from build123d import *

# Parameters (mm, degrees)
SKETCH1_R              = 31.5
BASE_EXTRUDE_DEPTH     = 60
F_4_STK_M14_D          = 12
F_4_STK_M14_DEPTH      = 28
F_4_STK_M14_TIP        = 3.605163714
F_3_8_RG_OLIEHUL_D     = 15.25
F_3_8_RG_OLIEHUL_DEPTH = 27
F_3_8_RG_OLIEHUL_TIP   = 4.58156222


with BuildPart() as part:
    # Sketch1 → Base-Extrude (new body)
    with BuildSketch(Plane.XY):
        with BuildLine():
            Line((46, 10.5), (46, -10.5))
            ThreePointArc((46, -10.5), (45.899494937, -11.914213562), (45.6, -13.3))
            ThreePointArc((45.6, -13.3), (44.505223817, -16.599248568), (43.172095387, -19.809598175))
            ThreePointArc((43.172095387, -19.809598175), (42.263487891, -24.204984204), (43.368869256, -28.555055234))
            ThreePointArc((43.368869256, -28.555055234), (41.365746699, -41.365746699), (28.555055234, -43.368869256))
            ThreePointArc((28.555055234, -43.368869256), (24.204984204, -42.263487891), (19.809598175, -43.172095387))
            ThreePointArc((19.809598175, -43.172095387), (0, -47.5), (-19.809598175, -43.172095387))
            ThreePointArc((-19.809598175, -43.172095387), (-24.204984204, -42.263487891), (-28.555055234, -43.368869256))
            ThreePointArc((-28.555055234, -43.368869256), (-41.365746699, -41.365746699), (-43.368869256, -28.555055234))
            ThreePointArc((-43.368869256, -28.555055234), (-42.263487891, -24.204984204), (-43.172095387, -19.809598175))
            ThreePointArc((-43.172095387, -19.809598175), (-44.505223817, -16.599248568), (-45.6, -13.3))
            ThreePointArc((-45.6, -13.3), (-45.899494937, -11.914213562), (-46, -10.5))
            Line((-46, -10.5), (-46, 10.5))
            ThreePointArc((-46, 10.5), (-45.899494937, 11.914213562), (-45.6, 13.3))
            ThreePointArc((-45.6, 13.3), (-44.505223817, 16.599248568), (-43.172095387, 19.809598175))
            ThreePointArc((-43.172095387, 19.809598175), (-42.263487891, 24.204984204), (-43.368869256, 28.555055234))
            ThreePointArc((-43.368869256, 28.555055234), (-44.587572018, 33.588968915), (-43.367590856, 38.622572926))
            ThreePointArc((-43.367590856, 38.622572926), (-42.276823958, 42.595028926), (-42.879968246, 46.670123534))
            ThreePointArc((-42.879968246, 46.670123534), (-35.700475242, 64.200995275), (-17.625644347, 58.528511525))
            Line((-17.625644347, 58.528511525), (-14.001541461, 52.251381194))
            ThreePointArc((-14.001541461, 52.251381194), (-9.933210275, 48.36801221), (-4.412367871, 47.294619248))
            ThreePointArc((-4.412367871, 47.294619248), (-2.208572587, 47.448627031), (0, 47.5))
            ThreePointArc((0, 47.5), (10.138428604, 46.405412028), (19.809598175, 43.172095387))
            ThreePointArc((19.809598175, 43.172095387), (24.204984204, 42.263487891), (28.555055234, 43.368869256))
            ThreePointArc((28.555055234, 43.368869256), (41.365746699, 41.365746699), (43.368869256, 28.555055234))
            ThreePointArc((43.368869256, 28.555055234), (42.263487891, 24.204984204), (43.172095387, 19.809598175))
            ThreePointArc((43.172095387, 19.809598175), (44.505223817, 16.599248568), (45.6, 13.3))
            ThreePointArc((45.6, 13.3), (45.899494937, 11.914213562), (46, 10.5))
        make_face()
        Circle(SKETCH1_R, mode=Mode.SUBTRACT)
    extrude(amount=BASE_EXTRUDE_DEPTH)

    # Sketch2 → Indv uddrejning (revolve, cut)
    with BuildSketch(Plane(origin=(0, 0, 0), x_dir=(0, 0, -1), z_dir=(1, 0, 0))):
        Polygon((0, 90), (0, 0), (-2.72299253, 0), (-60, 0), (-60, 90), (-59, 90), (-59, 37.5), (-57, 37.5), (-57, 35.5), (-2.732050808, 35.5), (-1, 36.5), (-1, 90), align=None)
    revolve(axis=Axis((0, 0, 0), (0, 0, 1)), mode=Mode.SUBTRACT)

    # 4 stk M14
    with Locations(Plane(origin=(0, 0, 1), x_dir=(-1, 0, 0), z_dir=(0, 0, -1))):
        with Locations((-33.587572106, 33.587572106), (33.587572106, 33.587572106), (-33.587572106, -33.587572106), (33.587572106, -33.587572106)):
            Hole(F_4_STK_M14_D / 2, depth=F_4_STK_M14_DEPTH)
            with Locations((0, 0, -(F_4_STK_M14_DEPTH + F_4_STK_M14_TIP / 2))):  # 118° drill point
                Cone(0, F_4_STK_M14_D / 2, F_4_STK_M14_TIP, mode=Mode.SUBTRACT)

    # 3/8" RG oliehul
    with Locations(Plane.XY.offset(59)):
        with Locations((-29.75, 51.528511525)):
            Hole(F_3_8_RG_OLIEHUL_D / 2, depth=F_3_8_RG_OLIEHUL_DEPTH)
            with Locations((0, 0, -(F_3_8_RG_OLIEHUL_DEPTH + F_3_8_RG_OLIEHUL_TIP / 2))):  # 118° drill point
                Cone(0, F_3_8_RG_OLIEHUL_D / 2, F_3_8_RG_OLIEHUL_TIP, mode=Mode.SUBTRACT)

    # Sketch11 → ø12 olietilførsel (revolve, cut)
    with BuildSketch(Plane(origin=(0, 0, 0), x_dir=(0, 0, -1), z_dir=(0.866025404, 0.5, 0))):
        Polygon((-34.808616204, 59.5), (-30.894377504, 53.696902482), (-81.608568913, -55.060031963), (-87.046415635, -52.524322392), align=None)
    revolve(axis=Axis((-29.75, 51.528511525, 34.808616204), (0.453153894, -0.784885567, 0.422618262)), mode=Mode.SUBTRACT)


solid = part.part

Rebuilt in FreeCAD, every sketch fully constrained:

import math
import FreeCAD as App
import Part
import Sketcher
from FreeCAD import Vector
Q = App.Units.Quantity


def add_polygon(sketch, points):
    """Adds a closed chain of lines whose ends are joined by coincident constraints."""
    first, n = sketch.GeometryCount, len(points)
    for a, b in zip(points, points[1:] + points[:1]):
        sketch.addGeometry(Part.LineSegment(App.Vector(*a, 0), App.Vector(*b, 0)), False)
    for i in range(n):
        sketch.addConstraint(Sketcher.Constraint("Coincident", first + i, 2, first + (i + 1) % n, 1))

doc = App.newDocument("Part")
body = doc.addObject("PartDesign::Body", "Body")

sketch1 = body.newObject("Sketcher::SketchObject", "Sketch")
sketch1.AttachmentSupport = (doc.getObject("XY_Plane"), [""])
sketch1.MapMode = "FlatFace"
sketch1.addGeometry([
    Part.LineSegment(Vector(46, -10.5, 0), Vector(46, 10.5, 0)),
    Part.ArcOfCircle(Part.Circle(Vector(36, 10.5, 0), Vector(0, 0, 1), 10), math.radians(0), math.radians(16.26)),
    Part.ArcOfCircle(Part.Circle(Vector(0, 0, 0), Vector(0, 0, 1), 47.5), math.radians(16.26), math.radians(24.65)),
    Part.ArcOfCircle(Part.Circle(Vector(52.3, 24, 0), Vector(0, 0, 1), 10), math.radians(153), math.radians(205)),
    Part.ArcOfCircle(Part.Circle(Vector(33.6, 33.6, 0), Vector(0, 0, 1), 11), math.radians(-27), math.radians(117)),
    Part.ArcOfCircle(Part.Circle(Vector(24, 52.3, 0), Vector(0, 0, 1), 10), math.radians(-115), math.radians(-63)),
    Part.ArcOfCircle(Part.Circle(Vector(0, 0, 0), Vector(0, 0, 1), 47.5), math.radians(65), math.radians(90)),
    Part.ArcOfCircle(Part.Circle(Vector(0, 0, 0), Vector(0, 0, 1), 47.5), math.radians(90), math.radians(95.33)),
    Part.ArcOfCircle(Part.Circle(Vector(-5.3, 57.3, 0), Vector(0, 0, 1), 10), math.radians(-150), math.radians(-85)),
    Part.LineSegment(Vector(-14, 52.3, 0), Vector(-17.6, 58.5, 0)),
    Part.ArcOfCircle(Part.Circle(Vector(-29.8, 51.5, 0), Vector(0, 0, 1), 14), math.radians(30), math.radians(200)),
    Part.ArcOfCircle(Part.Circle(Vector(-52.3, 43.2, 0), Vector(0, 0, 1), 10), math.radians(-27), math.radians(20)),
    Part.ArcOfCircle(Part.Circle(Vector(-33.6, 33.6, 0), Vector(0, 0, 1), 11), math.radians(153), math.radians(207)),
    Part.ArcOfCircle(Part.Circle(Vector(-52.3, 24, 0), Vector(0, 0, 1), 10), math.radians(-25), math.radians(27)),
    Part.ArcOfCircle(Part.Circle(Vector(0, 0, 0), Vector(0, 0, 1), 47.5), math.radians(155.35), math.radians(163.74)),
    Part.ArcOfCircle(Part.Circle(Vector(-36, 10.5, 0), Vector(0, 0, 1), 10), math.radians(163.74), math.radians(180)),
    Part.LineSegment(Vector(-46, 10.5, 0), Vector(-46, -10.5, 0)),
    Part.ArcOfCircle(Part.Circle(Vector(-36, -10.5, 0), Vector(0, 0, 1), 10), math.radians(180), math.radians(196.26)),
    Part.ArcOfCircle(Part.Circle(Vector(0, 0, 0), Vector(0, 0, 1), 47.5), math.radians(-163.74), math.radians(-155.35)),
    Part.ArcOfCircle(Part.Circle(Vector(-52.3, -24, 0), Vector(0, 0, 1), 10), math.radians(-27), math.radians(25)),
    Part.ArcOfCircle(Part.Circle(Vector(-33.6, -33.6, 0), Vector(0, 0, 1), 11), math.radians(153), math.radians(297)),
    Part.ArcOfCircle(Part.Circle(Vector(-24, -52.3, 0), Vector(0, 0, 1), 10), math.radians(65), math.radians(117)),
    Part.ArcOfCircle(Part.Circle(Vector(0, 0, 0), Vector(0, 0, 1), 47.5), math.radians(-115), math.radians(-65)),
    Part.ArcOfCircle(Part.Circle(Vector(24, -52.3, 0), Vector(0, 0, 1), 10), math.radians(63), math.radians(115)),
    Part.ArcOfCircle(Part.Circle(Vector(33.6, -33.6, 0), Vector(0, 0, 1), 11), math.radians(-117), math.radians(27)),
    Part.ArcOfCircle(Part.Circle(Vector(52.3, -24, 0), Vector(0, 0, 1), 10), math.radians(155), math.radians(207)),
    Part.ArcOfCircle(Part.Circle(Vector(0, 0, 0), Vector(0, 0, 1), 47.5), math.radians(-24.65), math.radians(-16.26)),
    Part.ArcOfCircle(Part.Circle(Vector(36, -10.5, 0), Vector(0, 0, 1), 10), math.radians(-16.26), math.radians(0)),
    Part.Circle(Vector(0, 0, 0), Vector(0, 0, 1), 31.5),
], False)
sketch1.addConstraint([
    Sketcher.Constraint("Tangent", 0, 2, 1, 1),
    Sketcher.Constraint("Tangent", 1, 2, 2, 1),
    Sketcher.Constraint("Tangent", 2, 2, 3, 2),
    Sketcher.Constraint("Tangent", 3, 1, 4, 1),
    Sketcher.Constraint("Tangent", 4, 2, 5, 2),
    Sketcher.Constraint("Tangent", 5, 1, 6, 1),
    Sketcher.Constraint("Tangent", 6, 2, 7, 1),
    Sketcher.Constraint("Tangent", 7, 2, 8, 2),
    Sketcher.Constraint("Tangent", 8, 1, 9, 1),
    Sketcher.Constraint("Tangent", 9, 2, 10, 1),
    Sketcher.Constraint("Tangent", 10, 2, 11, 2),
    Sketcher.Constraint("Tangent", 11, 1, 12, 1),
    Sketcher.Constraint("Tangent", 12, 2, 13, 2),
    Sketcher.Constraint("Tangent", 13, 1, 14, 1),
    Sketcher.Constraint("Tangent", 14, 2, 15, 1),
    Sketcher.Constraint("Tangent", 15, 2, 16, 1),
    Sketcher.Constraint("Tangent", 16, 2, 17, 1),
    Sketcher.Constraint("Tangent", 17, 2, 18, 1),
    Sketcher.Constraint("Tangent", 18, 2, 19, 2),
    Sketcher.Constraint("Tangent", 19, 1, 20, 1),
    Sketcher.Constraint("Tangent", 20, 2, 21, 2),
    Sketcher.Constraint("Tangent", 21, 1, 22, 1),
    Sketcher.Constraint("Tangent", 22, 2, 23, 2),
    Sketcher.Constraint("Tangent", 23, 1, 24, 1),
    Sketcher.Constraint("Tangent", 24, 2, 25, 2),
    Sketcher.Constraint("Tangent", 25, 1, 26, 1),
    Sketcher.Constraint("Tangent", 26, 2, 27, 1),
    Sketcher.Constraint("Tangent", 27, 2, 0, 1),
    Sketcher.Constraint("Vertical", 0),
    Sketcher.Constraint("Vertical", 16),
    Sketcher.Constraint("Coincident", 2, 3, -1, 1),
    Sketcher.Constraint("Coincident", 6, 3, -1, 1),
    Sketcher.Constraint("Coincident", 14, 3, -1, 1),
    Sketcher.Constraint("Coincident", 18, 3, -1, 1),
    Sketcher.Constraint("Coincident", 22, 3, -1, 1),
    Sketcher.Constraint("Coincident", 26, 3, -1, 1),
    Sketcher.Constraint("Coincident", 28, 3, -1, 1),
    Sketcher.Constraint("Equal", 1, 3),
    Sketcher.Constraint("Equal", 3, 5),
    Sketcher.Constraint("Equal", 2, 6),
    Sketcher.Constraint("Equal", 6, 7),
    Sketcher.Constraint("Equal", 5, 8),
    Sketcher.Constraint("Equal", 8, 11),
    Sketcher.Constraint("Equal", 4, 12),
    Sketcher.Constraint("Equal", 11, 13),
    Sketcher.Constraint("Equal", 7, 14),
    Sketcher.Constraint("Equal", 13, 15),
    Sketcher.Constraint("Equal", 15, 17),
    Sketcher.Constraint("Equal", 14, 18),
    Sketcher.Constraint("Equal", 17, 19),
    Sketcher.Constraint("Equal", 12, 20),
    Sketcher.Constraint("Equal", 19, 21),
    Sketcher.Constraint("Equal", 18, 22),
    Sketcher.Constraint("Equal", 21, 23),
    Sketcher.Constraint("Equal", 20, 24),
    Sketcher.Constraint("Equal", 23, 25),
    Sketcher.Constraint("Equal", 22, 26),
    Sketcher.Constraint("Equal", 25, 27),
    Sketcher.Constraint("Symmetric", 4, 3, 20, 3, -1, 1),
    Sketcher.Constraint("Symmetric", 12, 3, 24, 3, -1, 1),
    Sketcher.Constraint("Symmetric", 4, 3, 12, 3, -2),
    Sketcher.Constraint("PointOnObject", 6, 2, -2),
    Sketcher.Constraint("Horizontal", 1, 3, 15, 3),
    Sketcher.Constraint("Diameter", 28, Q("63 mm")),
    Sketcher.Constraint("Radius", 1, Q("10 mm")),
    Sketcher.Constraint("Radius", 4, Q("11 mm")),
    Sketcher.Constraint("Radius", 10, Q("14 mm")),
    Sketcher.Constraint("Radius", 2, Q("47.5 mm")),
    Sketcher.Constraint("DistanceY", 0, 1, 0, 2, Q("21 mm")),
    Sketcher.Constraint("Angle", 9, Q("120 deg")),
    Sketcher.Constraint("DistanceX", 10, 3, -1, 1, Q("29.75 mm")),
    Sketcher.Constraint("DistanceY", 12, 3, 11, 1, Q("5.035001 mm")),
    Sketcher.Constraint("DistanceY", -1, 1, 2, 2, Q("19.809598 mm")),
    Sketcher.Constraint("DistanceX", -1, 1, 5, 1, Q("19.809598 mm")),
])
pad1 = body.newObject("PartDesign::Pad", "Pad")
pad1.Profile = sketch1
pad1.Length = 60

sketch2 = body.newObject("Sketcher::SketchObject", "Sketch001")
sketch2.AttachmentSupport = (doc.getObject("YZ_Plane"), [""])
sketch2.MapMode = "FlatFace"
add_polygon(sketch2, [(0, 0), (90, 0), (90, 1), (36.5, 1), (35.5, 2.7), (35.5, 57), (37.5, 57), (37.5, 59), (90, 59), (90, 60), (0, 60)])
sketch2.addConstraint([
    Sketcher.Constraint("Horizontal", 0),
    Sketcher.Constraint("Vertical", 1),
    Sketcher.Constraint("Horizontal", 2),
    Sketcher.Constraint("Vertical", 4),
    Sketcher.Constraint("Horizontal", 5),
    Sketcher.Constraint("Vertical", 6),
    Sketcher.Constraint("Horizontal", 7),
    Sketcher.Constraint("Vertical", 8),
    Sketcher.Constraint("Horizontal", 9),
    Sketcher.Constraint("Vertical", 10),
    Sketcher.Constraint("Coincident", 10, 2, -1, 1),
    Sketcher.Constraint("Vertical", 1, 2, 7, 2),
    Sketcher.Constraint("Equal", 5, 6),
    Sketcher.Constraint("Equal", 1, 8),
    Sketcher.Constraint("DistanceX", 0, 1, 0, 2, Q("90 mm")),
    Sketcher.Constraint("DistanceX", 5, 1, 5, 2, Q("2 mm")),
    Sketcher.Constraint("DistanceY", 1, 1, 1, 2, Q("1 mm")),
    Sketcher.Constraint("DistanceY", 10, 2, 10, 1, Q("60 mm")),
    Sketcher.Constraint("Angle", 3, Q("120 deg")),
    Sketcher.Constraint("Distance", 3, Q("2 mm")),
    Sketcher.Constraint("DistanceX", 2, 2, 2, 1, Q("53.5 mm")),
])
groove = body.newObject("PartDesign::Groove", "Groove")
groove.Profile = sketch2
groove.ReferenceAxis = (sketch2, ["V_Axis"])
groove.Angle = 360

sketch3 = body.newObject("Sketcher::SketchObject", "Sketch002")
sketch3.AttachmentSupport = (doc.getObject("XY_Plane"), [""])
sketch3.MapMode = "FlatFace"
sketch3.AttachmentOffset = App.Placement(Vector(0, 0, 1), App.Rotation())
sketch3.addGeometry([
    Part.Circle(Vector(34, 34, 0), Vector(0, 0, 1), 6),
    Part.Circle(Vector(-34, 34, 0), Vector(0, 0, 1), 6),
    Part.Circle(Vector(34, -34, 0), Vector(0, 0, 1), 6),
    Part.Circle(Vector(-34, -34, 0), Vector(0, 0, 1), 6),
], False)
sketch3.addConstraint([
    Sketcher.Constraint("Equal", 0, 1),
    Sketcher.Constraint("Equal", 1, 2),
    Sketcher.Constraint("Equal", 2, 3),
    Sketcher.Constraint("Symmetric", 1, 3, 2, 3, -1, 1),
    Sketcher.Constraint("Symmetric", 0, 3, 3, 3, -1, 1),
    Sketcher.Constraint("Symmetric", 0, 3, 1, 3, -2),
    Sketcher.Constraint("Diameter", 0, Q("12 mm")),
    Sketcher.Constraint("DistanceX", -1, 1, 0, 3, Q("33.587572 mm")),
    Sketcher.Constraint("DistanceY", -1, 1, 0, 3, Q("33.587572 mm")),
])
doc.recompute()
hole = body.newObject("PartDesign::Hole", "Hole")
hole.Profile = sketch3
hole.ThreadType = "None"
hole.Diameter = 12
hole.DepthType = "Dimension"
hole.Depth = 28
hole.DrillPoint = "Angled"
hole.DrillPointAngle = 118
hole.Reversed = True

sketch4 = body.newObject("Sketcher::SketchObject", "Sketch003")
sketch4.AttachmentSupport = (doc.getObject("XY_Plane"), [""])
sketch4.MapMode = "FlatFace"
sketch4.AttachmentOffset = App.Placement(Vector(0, 0, 59), App.Rotation())
sketch4.addGeometry(Part.Circle(Vector(-30, 52, 0), Vector(0, 0, 1), 8), False)
sketch4.addConstraint([
    Sketcher.Constraint("Diameter", 0, Q("15.25 mm")),
    Sketcher.Constraint("DistanceX", 0, 3, -1, 1, Q("29.75 mm")),
    Sketcher.Constraint("DistanceY", -1, 1, 0, 3, Q("51.528512 mm")),
])
doc.recompute()
hole2 = body.newObject("PartDesign::Hole", "Hole001")
hole2.Profile = sketch4
hole2.ThreadType = "None"
hole2.Diameter = 15.25
hole2.DepthType = "Dimension"
hole2.Depth = 27
hole2.DrillPoint = "Angled"
hole2.DrillPointAngle = 118

sketch5 = body.newObject("Sketcher::SketchObject", "Sketch004")
sketch5.Placement = App.Placement(Vector(0, 0, 0), App.Rotation(Vector(0, 0, -1), Vector(-0.5, 0.866025404, 0), Vector(0.866025404, 0.5, 0), "ZXY"))
add_polygon(sketch5, [(-31, 54), (-35, 60), (-87, -53), (-82, -55)])
sketch5.addGeometry(Part.LineSegment(Vector(-35, 60, 0), Vector(-87, -53, 0)), True)
sketch5.addConstraint([
    Sketcher.Constraint("Coincident", 4, 1, 0, 2),
    Sketcher.Constraint("Coincident", 4, 2, 1, 2),
    Sketcher.Constraint("Perpendicular", 1, 2),
    Sketcher.Constraint("Perpendicular", 2, 3),
    Sketcher.Constraint("Angle", 0, Q("124 deg")),
    Sketcher.Constraint("Angle", 1, Q("-115 deg")),
    Sketcher.Constraint("Distance", 2, Q("6 mm")),
    Sketcher.Constraint("Distance", 3, Q("120 mm")),
    Sketcher.Constraint("DistanceY", -1, 1, 0, 2, Q("59.5 mm")),
    Sketcher.Constraint("DistanceX", 2, 2, -1, 1, Q("81.608569 mm")),
])
groove2 = body.newObject("PartDesign::Groove", "Groove001")
groove2.Profile = sketch5
groove2.ReferenceAxis = (sketch5, ["Axis0"])
groove2.Angle = 360

doc.recompute()
